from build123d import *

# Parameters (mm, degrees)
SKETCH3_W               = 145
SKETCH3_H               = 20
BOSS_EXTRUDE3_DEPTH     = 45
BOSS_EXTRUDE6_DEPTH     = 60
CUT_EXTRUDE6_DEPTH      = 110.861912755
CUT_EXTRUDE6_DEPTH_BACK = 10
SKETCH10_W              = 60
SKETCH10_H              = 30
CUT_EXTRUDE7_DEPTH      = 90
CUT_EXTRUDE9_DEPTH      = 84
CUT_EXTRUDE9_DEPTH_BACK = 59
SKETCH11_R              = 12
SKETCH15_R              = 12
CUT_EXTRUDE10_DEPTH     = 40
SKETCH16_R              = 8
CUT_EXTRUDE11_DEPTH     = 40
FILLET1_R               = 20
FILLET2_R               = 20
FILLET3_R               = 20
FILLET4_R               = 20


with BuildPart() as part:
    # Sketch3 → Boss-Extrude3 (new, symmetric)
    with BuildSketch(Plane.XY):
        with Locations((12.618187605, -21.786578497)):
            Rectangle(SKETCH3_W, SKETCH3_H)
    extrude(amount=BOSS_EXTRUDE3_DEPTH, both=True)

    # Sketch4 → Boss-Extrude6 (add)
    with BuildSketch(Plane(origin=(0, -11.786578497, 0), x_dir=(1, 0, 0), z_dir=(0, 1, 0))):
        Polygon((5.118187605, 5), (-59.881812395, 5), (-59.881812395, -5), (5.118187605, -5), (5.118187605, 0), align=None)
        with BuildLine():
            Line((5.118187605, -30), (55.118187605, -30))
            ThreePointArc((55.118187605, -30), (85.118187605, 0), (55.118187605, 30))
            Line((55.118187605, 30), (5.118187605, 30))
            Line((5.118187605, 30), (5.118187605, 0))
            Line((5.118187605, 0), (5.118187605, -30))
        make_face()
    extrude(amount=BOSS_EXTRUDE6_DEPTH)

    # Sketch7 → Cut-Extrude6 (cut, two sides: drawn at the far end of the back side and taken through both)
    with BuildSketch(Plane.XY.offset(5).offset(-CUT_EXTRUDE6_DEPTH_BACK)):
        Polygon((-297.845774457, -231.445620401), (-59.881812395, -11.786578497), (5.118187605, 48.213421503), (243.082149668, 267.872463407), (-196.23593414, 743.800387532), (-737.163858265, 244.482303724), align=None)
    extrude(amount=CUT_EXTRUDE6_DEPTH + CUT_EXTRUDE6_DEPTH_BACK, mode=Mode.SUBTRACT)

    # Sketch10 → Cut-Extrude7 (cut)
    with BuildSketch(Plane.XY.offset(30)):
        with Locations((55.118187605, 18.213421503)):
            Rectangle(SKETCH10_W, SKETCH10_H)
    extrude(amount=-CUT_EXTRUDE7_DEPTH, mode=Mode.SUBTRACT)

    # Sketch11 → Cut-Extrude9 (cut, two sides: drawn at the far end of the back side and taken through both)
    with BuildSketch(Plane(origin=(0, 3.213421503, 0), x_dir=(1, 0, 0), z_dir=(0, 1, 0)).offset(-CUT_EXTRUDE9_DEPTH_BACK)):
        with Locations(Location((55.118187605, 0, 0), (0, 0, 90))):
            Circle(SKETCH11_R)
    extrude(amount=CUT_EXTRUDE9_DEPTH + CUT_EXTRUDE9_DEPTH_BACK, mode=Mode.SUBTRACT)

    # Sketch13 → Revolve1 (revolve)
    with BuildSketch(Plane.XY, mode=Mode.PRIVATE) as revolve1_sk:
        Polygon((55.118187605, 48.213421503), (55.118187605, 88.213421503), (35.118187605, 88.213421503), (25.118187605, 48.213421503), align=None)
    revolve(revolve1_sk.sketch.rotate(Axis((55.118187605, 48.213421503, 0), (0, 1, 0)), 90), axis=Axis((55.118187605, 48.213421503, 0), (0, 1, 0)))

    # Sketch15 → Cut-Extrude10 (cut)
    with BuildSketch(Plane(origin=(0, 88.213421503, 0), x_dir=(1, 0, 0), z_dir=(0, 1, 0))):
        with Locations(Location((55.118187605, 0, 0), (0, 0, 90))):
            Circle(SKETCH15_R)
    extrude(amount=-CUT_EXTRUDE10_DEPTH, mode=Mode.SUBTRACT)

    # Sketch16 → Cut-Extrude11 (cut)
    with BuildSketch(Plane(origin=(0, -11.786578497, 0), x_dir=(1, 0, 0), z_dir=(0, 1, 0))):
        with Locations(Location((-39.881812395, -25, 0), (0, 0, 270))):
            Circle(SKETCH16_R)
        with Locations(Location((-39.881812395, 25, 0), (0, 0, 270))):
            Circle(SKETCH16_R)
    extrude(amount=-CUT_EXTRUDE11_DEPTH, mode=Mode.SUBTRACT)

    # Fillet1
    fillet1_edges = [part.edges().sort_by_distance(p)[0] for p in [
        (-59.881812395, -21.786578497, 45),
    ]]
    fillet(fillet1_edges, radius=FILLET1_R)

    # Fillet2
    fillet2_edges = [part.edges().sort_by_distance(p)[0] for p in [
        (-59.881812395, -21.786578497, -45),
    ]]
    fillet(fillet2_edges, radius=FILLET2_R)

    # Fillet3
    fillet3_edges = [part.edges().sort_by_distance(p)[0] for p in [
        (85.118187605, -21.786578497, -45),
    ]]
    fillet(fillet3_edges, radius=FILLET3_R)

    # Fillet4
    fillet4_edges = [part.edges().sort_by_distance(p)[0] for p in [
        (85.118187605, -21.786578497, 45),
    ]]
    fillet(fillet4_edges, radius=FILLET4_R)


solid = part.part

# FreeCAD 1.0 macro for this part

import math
import FreeCAD as App
import Part
import Sketcher
Q = App.Units.Quantity


def edges_at(feature, points):
    """Names of the edges that pass closest to the given points."""
    edges = feature.Shape.Edges
    near = lambda p: min(range(len(edges)), key=lambda i: edges[i].distToShape(Part.Vertex(*p))[0])
    return sorted({f"Edge{near(p) + 1}" for p in points})


def add_polygon(sketch, points):
    """Adds a closed chain of lines whose ends are joined by coincident constraints."""
    first, n = sketch.GeometryCount, len(points)
    for a, b in zip(points, points[1:] + points[:1]):
        sketch.addGeometry(Part.LineSegment(App.Vector(*a, 0), App.Vector(*b, 0)), False)
    for i in range(n):
        sketch.addConstraint(Sketcher.Constraint("Coincident", first + i, 2, first + (i + 1) % n, 1))

doc = App.newDocument("Part")
params = doc.addObject("Spreadsheet::Sheet", "Params")
for row, (alias, value) in enumerate([
    ("sketch1_width", "145 mm"),
    ("sketch1_height", "20 mm"),
    ("pad1_length", "90 mm"),
    ("sketch2_radius", "30 mm"),
    ("sketch2_width", "65 mm"),
    ("sketch2_width2", "50 mm"),
    ("sketch2_height", "10 mm"),
    ("pad2_length", "60 mm"),
    ("sketch4_width", "60 mm"),
    ("sketch4_height", "30 mm"),
    ("pocket2_length", "90 mm"),
    ("sketch5_diameter", "24 mm"),
    ("sketch6_width", "20 mm"),
    ("sketch6_width2", "30 mm"),
    ("sketch6_height", "40 mm"),
    ("revolution_angle", "360 deg"),
    ("sketch7_diameter", "24 mm"),
    ("pocket4_length", "40 mm"),
    ("sketch8_diameter", "16 mm"),
    ("pocket5_length", "40 mm"),
    ("fillet_radius", "20 mm"),
    ("fillet2_radius", "20 mm"),
    ("fillet3_radius", "20 mm"),
    ("fillet4_radius", "20 mm"),
], start=1):
    params.set(f"A{row}", alias)
    params.set(f"B{row}", "=" + value)
    params.setAlias(f"B{row}", alias)

body = doc.addObject("PartDesign::Body", "Body")

sketch1 = body.newObject("Sketcher::SketchObject", "Sketch")
sketch1.AttachmentSupport = (doc.getObject("XY_Plane"), [""])
sketch1.MapMode = "FlatFace"
add_polygon(sketch1, [(-60, -12), (-60, -32), (85, -32), (85, -12)])
sketch1.addConstraint([
    Sketcher.Constraint("Vertical", 0),
    Sketcher.Constraint("Horizontal", 1),
    Sketcher.Constraint("Vertical", 2),
    Sketcher.Constraint("Horizontal", 3),
    Sketcher.Constraint("DistanceX", 1, 1, 1, 2, Q("145 mm")),
    Sketcher.Constraint("DistanceY", 0, 2, 0, 1, Q("20 mm")),
    Sketcher.Constraint("DistanceY", 0, 2, -1, 1, Q("31.786578 mm")),
    Sketcher.Constraint("DistanceX", 0, 2, -1, 1, Q("59.881812 mm")),
])
sketch1.setExpression("Constraints[8]", "Params.sketch1_width")
sketch1.setExpression("Constraints[9]", "Params.sketch1_height")
pad1 = body.newObject("PartDesign::Pad", "Pad")
pad1.Profile = sketch1
pad1.setExpression("Length", "Params.pad1_length")
pad1.Midplane = True

sketch2 = body.newObject("Sketcher::SketchObject", "Sketch001")
sketch2.AttachmentSupport = (doc.getObject("XZ_Plane"), [""])
sketch2.MapMode = "FlatFace"
sketch2.AttachmentOffset = App.Placement(App.Vector(0, 0, 11.786578), App.Rotation())
sketch2.addGeometry([
    Part.LineSegment(App.Vector(5, -5, 0), App.Vector(-60, -5, 0)),
    Part.LineSegment(App.Vector(-60, -5, 0), App.Vector(-60, 5, 0)),
    Part.LineSegment(App.Vector(-60, 5, 0), App.Vector(5, 5, 0)),
    Part.LineSegment(App.Vector(5, 5, 0), App.Vector(5, 30, 0)),
    Part.LineSegment(App.Vector(5, 30, 0), App.Vector(55, 30, 0)),
    Part.ArcOfCircle(Part.Circle(App.Vector(55, 0, 0), App.Vector(0, 0, 1), 30), math.radians(-90), math.radians(90)),
    Part.LineSegment(App.Vector(55, -30, 0), App.Vector(5, -30, 0)),
    Part.LineSegment(App.Vector(5, -30, 0), App.Vector(5, -5, 0)),
], False)
sketch2.addConstraint([
    Sketcher.Constraint("Coincident", 0, 2, 1, 1),
    Sketcher.Constraint("Coincident", 1, 2, 2, 1),
    Sketcher.Constraint("Coincident", 2, 2, 3, 1),
    Sketcher.Constraint("Coincident", 3, 2, 4, 1),
    Sketcher.Constraint("Tangent", 4, 2, 5, 2),
    Sketcher.Constraint("Tangent", 5, 1, 6, 1),
    Sketcher.Constraint("Coincident", 6, 2, 7, 1),
    Sketcher.Constraint("Coincident", 7, 2, 0, 1),
    Sketcher.Constraint("Horizontal", 0),
    Sketcher.Constraint("Vertical", 1),
    Sketcher.Constraint("Horizontal", 2),
    Sketcher.Constraint("Vertical", 3),
    Sketcher.Constraint("Horizontal", 4),
    Sketcher.Constraint("Horizontal", 6),
    Sketcher.Constraint("Vertical", 7),
    Sketcher.Constraint("Symmetric", 3, 2, 6, 2, -1),
    Sketcher.Constraint("Equal", 3, 7),
    Sketcher.Constraint("Radius", 5, Q("30 mm")),
    Sketcher.Constraint("DistanceX", 0, 2, 0, 1, Q("65 mm")),
    Sketcher.Constraint("DistanceX", 4, 1, 4, 2, Q("50 mm")),
    Sketcher.Constraint("DistanceY", 1, 1, 1, 2, Q("10 mm")),
    Sketcher.Constraint("DistanceX", -1, 1, 5, 3, Q("55.118188 mm")),
])
sketch2.setExpression("Constraints[17]", "Params.sketch2_radius")
sketch2.setExpression("Constraints[18]", "Params.sketch2_width")
sketch2.setExpression("Constraints[19]", "Params.sketch2_width2")
sketch2.setExpression("Constraints[20]", "Params.sketch2_height")
pad2 = body.newObject("PartDesign::Pad", "Pad001")
pad2.Profile = sketch2
pad2.setExpression("Length", "Params.pad2_length")
pad2.Reversed = True

sketch3 = body.newObject("Sketcher::SketchObject", "Sketch002")
sketch3.AttachmentSupport = (doc.getObject("XY_Plane"), [""])
sketch3.MapMode = "FlatFace"
sketch3.AttachmentOffset = App.Placement(App.Vector(0, 0, 5), App.Rotation())
add_polygon(sketch3, [(-298, -231), (-60, -12), (243, 268), (-196, 744), (-737, 244)])
sketch3.addConstraint([
    Sketcher.Constraint("Parallel", 0, 1),
    Sketcher.Constraint("Perpendicular", 1, 2),
    Sketcher.Constraint("Perpendicular", 2, 3),
    Sketcher.Constraint("Perpendicular", 3, 4),
    Sketcher.Constraint("DistanceY", 0, 2, -1, 1, Q("11.786578 mm")),
    Sketcher.Constraint("DistanceX", -1, 1, 1, 2, Q("243.08215 mm")),
    Sketcher.Constraint("DistanceX", 3, 2, -1, 1, Q("737.163858 mm")),
    Sketcher.Constraint("DistanceY", 4, 2, -1, 1, Q("231.44562 mm")),
    Sketcher.Constraint("DistanceY", 0, 2, 1, 2, Q("279.659042 mm")),
    Sketcher.Constraint("DistanceX", 2, 2, 0, 2, Q("136.354122 mm")),
])
pocket1 = body.newObject("PartDesign::Pocket", "Pocket")
pocket1.Profile = sketch3
pocket1.Type = "ThroughAll"
pocket1.Midplane = True

sketch4 = body.newObject("Sketcher::SketchObject", "Sketch003")
sketch4.AttachmentSupport = (doc.getObject("XY_Plane"), [""])
sketch4.MapMode = "FlatFace"
sketch4.AttachmentOffset = App.Placement(App.Vector(0, 0, 30), App.Rotation())
add_polygon(sketch4, [(25, 33), (25, 3), (85, 3), (85, 33)])
sketch4.addConstraint([
    Sketcher.Constraint("Vertical", 0),
    Sketcher.Constraint("Horizontal", 1),
    Sketcher.Constraint("Vertical", 2),
    Sketcher.Constraint("Horizontal", 3),
    Sketcher.Constraint("DistanceX", 1, 1, 1, 2, Q("60 mm")),
    Sketcher.Constraint("DistanceY", 0, 2, 0, 1, Q("30 mm")),
    Sketcher.Constraint("DistanceY", -1, 1, 0, 2, Q("3.213422 mm")),
    Sketcher.Constraint("DistanceX", -1, 1, 0, 2, Q("25.118188 mm")),
])
sketch4.setExpression("Constraints[8]", "Params.sketch4_width")
sketch4.setExpression("Constraints[9]", "Params.sketch4_height")
pocket2 = body.newObject("PartDesign::Pocket", "Pocket001")
pocket2.Profile = sketch4
pocket2.setExpression("Length", "Params.pocket2_length")

sketch5 = body.newObject("Sketcher::SketchObject", "Sketch004")
sketch5.AttachmentSupport = (doc.getObject("XZ_Plane"), [""])
sketch5.MapMode = "FlatFace"
sketch5.AttachmentOffset = App.Placement(App.Vector(0, 0, -3.213422), App.Rotation())
sketch5.addGeometry(Part.Circle(App.Vector(55, 0, 0), App.Vector(0, 0, 1), 12), False)
sketch5.addConstraint([
    Sketcher.Constraint("PointOnObject", 0, 3, -1),
    Sketcher.Constraint("Diameter", 0, Q("24 mm")),
    Sketcher.Constraint("DistanceX", -1, 1, 0, 3, Q("55.118188 mm")),
])
sketch5.setExpression("Constraints[1]", "Params.sketch5_diameter")
pocket3 = body.newObject("PartDesign::Pocket", "Pocket002")
pocket3.Profile = sketch5
pocket3.Type = "ThroughAll"
pocket3.Midplane = True

sketch6 = body.newObject("Sketcher::SketchObject", "Sketch005")
sketch6.AttachmentSupport = (doc.getObject("XY_Plane"), [""])
sketch6.MapMode = "FlatFace"
add_polygon(sketch6, [(55, 48), (55, 88), (35, 88), (25, 48)])
sketch6.addGeometry(Part.LineSegment(App.Vector(55, 48, 0), App.Vector(55, 88, 0)), True)
sketch6.addConstraint([
    Sketcher.Constraint("Vertical", 0),
    Sketcher.Constraint("Horizontal", 1),
    Sketcher.Constraint("Horizontal", 3),
    Sketcher.Constraint("Vertical", 4),
    Sketcher.Constraint("Coincident", 4, 1, 3, 2),
    Sketcher.Constraint("Horizontal", 1, 2, 4, 2),
    Sketcher.Constraint("DistanceX", 1, 2, 1, 1, Q("20 mm")),
    Sketcher.Constraint("DistanceX", 3, 1, 3, 2, Q("30 mm")),
    Sketcher.Constraint("DistanceY", 0, 1, 0, 2, Q("40 mm")),
    Sketcher.Constraint("DistanceY", -1, 1, 0, 2, Q("88.213422 mm")),
    Sketcher.Constraint("DistanceX", -1, 1, 0, 2, Q("55.118188 mm")),
])
sketch6.setExpression("Constraints[10]", "Params.sketch6_width")
sketch6.setExpression("Constraints[11]", "Params.sketch6_width2")
sketch6.setExpression("Constraints[12]", "Params.sketch6_height")
revolution = body.newObject("PartDesign::Revolution", "Revolution")
revolution.Profile = sketch6
revolution.ReferenceAxis = (sketch6, ["Axis0"])
revolution.setExpression("Angle", "Params.revolution_angle")

sketch7 = body.newObject("Sketcher::SketchObject", "Sketch006")
sketch7.AttachmentSupport = (doc.getObject("XZ_Plane"), [""])
sketch7.MapMode = "FlatFace"
sketch7.AttachmentOffset = App.Placement(App.Vector(0, 0, -88.213422), App.Rotation())
sketch7.addGeometry(Part.Circle(App.Vector(55, 0, 0), App.Vector(0, 0, 1), 12), False)
sketch7.addConstraint([
    Sketcher.Constraint("PointOnObject", 0, 3, -1),
    Sketcher.Constraint("Diameter", 0, Q("24 mm")),
    Sketcher.Constraint("DistanceX", -1, 1, 0, 3, Q("55.118188 mm")),
])
sketch7.setExpression("Constraints[1]", "Params.sketch7_diameter")
pocket4 = body.newObject("PartDesign::Pocket", "Pocket003")
pocket4.Profile = sketch7
pocket4.setExpression("Length", "Params.pocket4_length")
pocket4.Reversed = True

sketch8 = body.newObject("Sketcher::SketchObject", "Sketch007")
sketch8.AttachmentSupport = (doc.getObject("XZ_Plane"), [""])
sketch8.MapMode = "FlatFace"
sketch8.AttachmentOffset = App.Placement(App.Vector(0, 0, 11.786578), App.Rotation())
sketch8.addGeometry([
    Part.Circle(App.Vector(-40, 25, 0), App.Vector(0, 0, 1), 8),
    Part.Circle(App.Vector(-40, -25, 0), App.Vector(0, 0, 1), 8),
], False)
sketch8.addConstraint([
    Sketcher.Constraint("Equal", 0, 1),
    Sketcher.Constraint("Symmetric", 0, 3, 1, 3, -1),
    Sketcher.Constraint("Diameter", 0, Q("16 mm")),
    Sketcher.Constraint("DistanceY", -1, 1, 0, 3, Q("25 mm")),
    Sketcher.Constraint("DistanceX", 0, 3, -1, 1, Q("39.881812 mm")),
])
sketch8.setExpression("Constraints[2]", "Params.sketch8_diameter")
pocket5 = body.newObject("PartDesign::Pocket", "Pocket004")
pocket5.Profile = sketch8
pocket5.setExpression("Length", "Params.pocket5_length")
pocket5.Reversed = True
doc.recompute()

fillet = body.newObject("PartDesign::Fillet", "Fillet")
fillet.Base = (pocket5, edges_at(pocket5, [(-59.882, -21.787, 45)]))
fillet.setExpression("Radius", "Params.fillet_radius")
doc.recompute()

fillet2 = body.newObject("PartDesign::Fillet", "Fillet001")
fillet2.Base = (fillet, edges_at(fillet, [(-59.882, -21.787, -45)]))
fillet2.setExpression("Radius", "Params.fillet2_radius")
doc.recompute()

fillet3 = body.newObject("PartDesign::Fillet", "Fillet002")
fillet3.Base = (fillet2, edges_at(fillet2, [(85.118, -21.787, -45)]))
fillet3.setExpression("Radius", "Params.fillet3_radius")
doc.recompute()

fillet4 = body.newObject("PartDesign::Fillet", "Fillet003")
fillet4.Base = (fillet3, edges_at(fillet3, [(85.118, -21.787, 45)]))
fillet4.setExpression("Radius", "Params.fillet4_radius")

doc.recompute()
